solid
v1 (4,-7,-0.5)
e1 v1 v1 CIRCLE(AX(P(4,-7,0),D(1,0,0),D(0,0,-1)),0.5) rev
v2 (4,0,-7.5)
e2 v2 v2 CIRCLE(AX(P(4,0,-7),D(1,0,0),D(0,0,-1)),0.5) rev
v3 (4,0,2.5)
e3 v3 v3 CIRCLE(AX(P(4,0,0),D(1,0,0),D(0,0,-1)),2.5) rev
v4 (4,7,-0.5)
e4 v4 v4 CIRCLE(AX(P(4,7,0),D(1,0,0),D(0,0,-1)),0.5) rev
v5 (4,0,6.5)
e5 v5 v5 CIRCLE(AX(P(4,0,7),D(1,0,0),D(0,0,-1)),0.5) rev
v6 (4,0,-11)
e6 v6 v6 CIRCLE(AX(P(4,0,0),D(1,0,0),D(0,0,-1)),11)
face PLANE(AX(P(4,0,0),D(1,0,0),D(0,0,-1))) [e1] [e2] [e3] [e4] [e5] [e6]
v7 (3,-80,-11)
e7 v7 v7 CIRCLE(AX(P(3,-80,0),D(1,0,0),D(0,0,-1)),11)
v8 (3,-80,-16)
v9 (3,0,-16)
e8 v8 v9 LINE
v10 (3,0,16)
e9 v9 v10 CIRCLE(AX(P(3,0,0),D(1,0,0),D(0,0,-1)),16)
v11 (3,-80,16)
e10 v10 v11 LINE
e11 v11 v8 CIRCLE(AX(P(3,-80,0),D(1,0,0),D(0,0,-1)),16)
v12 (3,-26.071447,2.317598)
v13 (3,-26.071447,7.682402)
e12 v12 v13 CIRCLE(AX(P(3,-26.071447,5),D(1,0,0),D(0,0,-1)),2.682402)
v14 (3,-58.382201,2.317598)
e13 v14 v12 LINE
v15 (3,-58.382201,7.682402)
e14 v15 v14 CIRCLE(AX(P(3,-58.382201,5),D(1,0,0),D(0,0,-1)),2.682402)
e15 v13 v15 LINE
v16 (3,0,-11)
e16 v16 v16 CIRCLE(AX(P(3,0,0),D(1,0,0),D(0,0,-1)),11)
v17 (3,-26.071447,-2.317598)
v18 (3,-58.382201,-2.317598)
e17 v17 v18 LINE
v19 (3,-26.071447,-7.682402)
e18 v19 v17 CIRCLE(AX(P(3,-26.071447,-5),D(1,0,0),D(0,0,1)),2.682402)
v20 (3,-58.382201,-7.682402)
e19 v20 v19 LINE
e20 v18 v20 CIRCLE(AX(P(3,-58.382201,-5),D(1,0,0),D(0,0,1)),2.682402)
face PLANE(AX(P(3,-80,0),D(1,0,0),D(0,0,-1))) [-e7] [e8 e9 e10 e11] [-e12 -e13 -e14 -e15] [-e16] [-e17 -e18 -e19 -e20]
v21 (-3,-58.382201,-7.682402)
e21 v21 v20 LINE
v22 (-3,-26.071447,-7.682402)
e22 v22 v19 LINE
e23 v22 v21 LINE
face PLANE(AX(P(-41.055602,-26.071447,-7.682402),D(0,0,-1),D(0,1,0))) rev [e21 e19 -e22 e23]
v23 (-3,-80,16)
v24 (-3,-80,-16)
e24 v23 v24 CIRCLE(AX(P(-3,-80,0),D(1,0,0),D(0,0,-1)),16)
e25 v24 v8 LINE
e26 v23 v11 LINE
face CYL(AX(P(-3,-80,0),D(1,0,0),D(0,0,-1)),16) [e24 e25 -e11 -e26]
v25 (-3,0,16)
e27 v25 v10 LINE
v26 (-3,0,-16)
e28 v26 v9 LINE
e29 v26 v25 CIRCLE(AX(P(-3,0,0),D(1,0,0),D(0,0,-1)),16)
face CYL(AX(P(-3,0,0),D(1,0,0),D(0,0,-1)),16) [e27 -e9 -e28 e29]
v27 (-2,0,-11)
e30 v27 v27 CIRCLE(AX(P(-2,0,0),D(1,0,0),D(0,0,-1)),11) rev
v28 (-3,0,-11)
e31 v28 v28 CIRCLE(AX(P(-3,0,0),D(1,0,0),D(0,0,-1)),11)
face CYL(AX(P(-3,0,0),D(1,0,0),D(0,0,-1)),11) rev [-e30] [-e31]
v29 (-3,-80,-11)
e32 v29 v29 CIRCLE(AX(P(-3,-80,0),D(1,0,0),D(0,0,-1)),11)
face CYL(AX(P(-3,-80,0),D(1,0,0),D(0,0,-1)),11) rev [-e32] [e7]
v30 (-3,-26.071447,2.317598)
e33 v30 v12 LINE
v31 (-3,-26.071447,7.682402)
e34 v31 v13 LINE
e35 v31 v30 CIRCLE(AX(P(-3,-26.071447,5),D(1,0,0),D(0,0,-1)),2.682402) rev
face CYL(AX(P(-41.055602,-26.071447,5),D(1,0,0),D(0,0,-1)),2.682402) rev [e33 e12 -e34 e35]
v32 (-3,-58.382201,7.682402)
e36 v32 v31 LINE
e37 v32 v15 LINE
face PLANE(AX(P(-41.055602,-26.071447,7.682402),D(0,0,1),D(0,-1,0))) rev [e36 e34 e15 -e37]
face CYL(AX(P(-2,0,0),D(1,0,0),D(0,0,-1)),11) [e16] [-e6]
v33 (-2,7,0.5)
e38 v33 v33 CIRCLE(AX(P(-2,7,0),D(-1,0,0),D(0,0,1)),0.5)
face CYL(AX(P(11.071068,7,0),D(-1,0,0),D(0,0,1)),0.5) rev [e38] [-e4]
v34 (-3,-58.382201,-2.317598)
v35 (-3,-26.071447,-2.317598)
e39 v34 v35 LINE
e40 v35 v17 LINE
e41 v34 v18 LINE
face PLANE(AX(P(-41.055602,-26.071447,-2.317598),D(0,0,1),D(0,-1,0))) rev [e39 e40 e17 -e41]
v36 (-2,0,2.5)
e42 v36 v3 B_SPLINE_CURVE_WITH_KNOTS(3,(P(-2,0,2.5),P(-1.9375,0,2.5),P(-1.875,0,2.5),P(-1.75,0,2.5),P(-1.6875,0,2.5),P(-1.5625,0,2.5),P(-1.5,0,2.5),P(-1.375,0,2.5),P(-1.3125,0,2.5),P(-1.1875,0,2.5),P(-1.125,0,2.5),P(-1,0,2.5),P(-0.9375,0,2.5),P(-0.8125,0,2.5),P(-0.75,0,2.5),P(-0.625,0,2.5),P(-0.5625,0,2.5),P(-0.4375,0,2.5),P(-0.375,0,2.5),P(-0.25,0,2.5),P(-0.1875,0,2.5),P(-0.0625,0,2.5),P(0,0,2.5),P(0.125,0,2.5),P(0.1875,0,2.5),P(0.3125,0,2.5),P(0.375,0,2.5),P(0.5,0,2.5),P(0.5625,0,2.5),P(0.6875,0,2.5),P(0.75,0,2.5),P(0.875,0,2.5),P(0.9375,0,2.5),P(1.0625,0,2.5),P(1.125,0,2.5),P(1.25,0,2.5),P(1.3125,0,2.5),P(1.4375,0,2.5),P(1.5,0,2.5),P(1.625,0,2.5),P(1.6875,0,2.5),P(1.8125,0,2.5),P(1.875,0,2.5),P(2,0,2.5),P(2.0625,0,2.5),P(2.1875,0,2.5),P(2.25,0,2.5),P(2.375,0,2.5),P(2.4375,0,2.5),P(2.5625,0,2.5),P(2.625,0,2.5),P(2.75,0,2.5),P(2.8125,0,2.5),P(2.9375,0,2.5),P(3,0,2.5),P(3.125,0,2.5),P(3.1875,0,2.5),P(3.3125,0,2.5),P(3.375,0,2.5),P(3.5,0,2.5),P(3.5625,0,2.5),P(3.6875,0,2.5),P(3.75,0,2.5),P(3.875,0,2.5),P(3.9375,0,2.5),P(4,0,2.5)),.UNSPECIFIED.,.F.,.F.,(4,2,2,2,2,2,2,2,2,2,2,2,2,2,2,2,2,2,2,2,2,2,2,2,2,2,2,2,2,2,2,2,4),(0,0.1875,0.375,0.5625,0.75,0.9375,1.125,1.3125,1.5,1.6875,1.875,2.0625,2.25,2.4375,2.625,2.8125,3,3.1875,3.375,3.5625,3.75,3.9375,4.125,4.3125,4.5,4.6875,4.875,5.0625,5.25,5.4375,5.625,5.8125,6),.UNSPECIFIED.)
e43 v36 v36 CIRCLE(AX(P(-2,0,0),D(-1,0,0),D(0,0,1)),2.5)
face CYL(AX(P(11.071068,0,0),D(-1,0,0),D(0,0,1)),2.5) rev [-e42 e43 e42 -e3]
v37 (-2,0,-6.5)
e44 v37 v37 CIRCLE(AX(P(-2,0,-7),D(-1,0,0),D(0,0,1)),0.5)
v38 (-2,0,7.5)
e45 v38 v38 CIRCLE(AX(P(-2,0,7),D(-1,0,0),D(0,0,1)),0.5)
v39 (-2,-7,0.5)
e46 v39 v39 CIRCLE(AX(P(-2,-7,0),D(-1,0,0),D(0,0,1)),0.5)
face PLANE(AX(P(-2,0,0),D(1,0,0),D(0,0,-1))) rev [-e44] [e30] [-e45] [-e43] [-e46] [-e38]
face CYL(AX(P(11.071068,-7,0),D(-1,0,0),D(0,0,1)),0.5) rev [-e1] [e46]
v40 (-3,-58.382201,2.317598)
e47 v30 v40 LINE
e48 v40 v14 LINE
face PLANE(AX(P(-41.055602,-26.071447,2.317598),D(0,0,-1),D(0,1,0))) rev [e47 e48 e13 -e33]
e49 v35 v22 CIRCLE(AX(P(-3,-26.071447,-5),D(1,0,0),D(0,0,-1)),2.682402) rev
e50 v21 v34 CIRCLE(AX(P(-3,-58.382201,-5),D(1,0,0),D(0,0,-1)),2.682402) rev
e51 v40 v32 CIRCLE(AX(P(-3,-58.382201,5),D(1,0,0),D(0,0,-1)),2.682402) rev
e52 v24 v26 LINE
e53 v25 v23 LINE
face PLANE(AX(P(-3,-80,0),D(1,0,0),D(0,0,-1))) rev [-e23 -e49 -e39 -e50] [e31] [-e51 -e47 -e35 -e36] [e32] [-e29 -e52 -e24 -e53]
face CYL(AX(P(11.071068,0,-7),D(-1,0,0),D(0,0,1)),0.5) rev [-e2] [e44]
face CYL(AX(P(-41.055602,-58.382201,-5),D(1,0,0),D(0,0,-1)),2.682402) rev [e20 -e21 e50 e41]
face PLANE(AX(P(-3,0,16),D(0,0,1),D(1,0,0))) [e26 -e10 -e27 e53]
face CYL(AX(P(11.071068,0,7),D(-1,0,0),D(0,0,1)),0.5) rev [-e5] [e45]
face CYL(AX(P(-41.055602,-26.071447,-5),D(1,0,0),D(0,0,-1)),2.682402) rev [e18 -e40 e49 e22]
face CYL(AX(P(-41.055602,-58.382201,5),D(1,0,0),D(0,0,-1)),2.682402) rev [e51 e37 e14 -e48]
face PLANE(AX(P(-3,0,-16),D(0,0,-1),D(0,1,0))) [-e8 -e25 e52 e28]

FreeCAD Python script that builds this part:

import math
import FreeCAD as App
import Part
import Sketcher

doc = App.newDocument("Part")
body = doc.addObject("PartDesign::Body", "Body")

# Sketch on YZ plane
sketch1 = doc.addObject("Sketcher::SketchObject", "Sketch")
body.addObject(sketch1)
sketch1.AttachmentSupport = (doc.YZ_Plane, [""])
sketch1.MapMode = "FlatFace"
sketch1.addGeometry([
    Part.LineSegment(App.Vector(0, 16, 0), App.Vector(-80, 16, 0)),  # 0
    Part.ArcOfCircle(Part.Circle(App.Vector(-80, 0, 0), App.Vector(0, 0, 1), 16), math.radians(90), math.radians(270)),  # 1
    Part.LineSegment(App.Vector(-80, -16, 0), App.Vector(0, -16, 0)),  # 2
    Part.ArcOfCircle(Part.Circle(App.Vector(0, 0, 0), App.Vector(0, 0, 1), 16), math.radians(-90), math.radians(90)),  # 3
    Part.Circle(App.Vector(-80, 0, 0), App.Vector(0, 0, 1), 11),  # 4
    Part.Circle(App.Vector(0, 0, 0), App.Vector(0, 0, 1), 11),  # 5
], False)
sketch1.addConstraint([
    Sketcher.Constraint("Tangent", 0, 2, 1, 1),
    Sketcher.Constraint("Tangent", 1, 2, 2, 1),
    Sketcher.Constraint("Tangent", 2, 2, 3, 1),
    Sketcher.Constraint("Tangent", 3, 2, 0, 1),
    Sketcher.Constraint("Horizontal", 0),
    Sketcher.Constraint("Horizontal", 2),
    Sketcher.Constraint("Coincident", 3, 3, -1, 1),
    Sketcher.Constraint("Coincident", 5, 3, -1, 1),
    Sketcher.Constraint("Coincident", 4, 3, 1, 3),
    Sketcher.Constraint("Equal", 4, 5),
    Sketcher.Constraint("Diameter", 4, 22.0),
    Sketcher.Constraint("Radius", 1, 16.0),
    Sketcher.Constraint("DistanceX", 0, 2, 0, 1, 80.0),
])
pad1 = doc.addObject("PartDesign::Pad", "Pad")
body.addObject(pad1)
pad1.Profile = sketch1
pad1.Type = "TwoLengths"
pad1.Length = 3
pad1.Length2 = 3

# Sketch on YZ plane
sketch2 = doc.addObject("Sketcher::SketchObject", "Sketch001")
body.addObject(sketch2)
sketch2.AttachmentSupport = (doc.YZ_Plane, [""])
sketch2.MapMode = "FlatFace"
sketch2.addGeometry(Part.Circle(App.Vector(0, 0, 0), App.Vector(0, 0, 1), 11), False)
sketch2.addConstraint([
    Sketcher.Constraint("Coincident", 0, 3, -1, 1),
    Sketcher.Constraint("Diameter", 0, 22.0),
])
pad2 = doc.addObject("PartDesign::Pad", "Pad001")
body.addObject(pad2)
pad2.Profile = sketch2
pad2.Type = "TwoLengths"
pad2.Length = 4
pad2.Length2 = 2

# Sketch on YZ plane
sketch3 = doc.addObject("Sketcher::SketchObject", "Sketch002")
body.addObject(sketch3)
sketch3.AttachmentSupport = (doc.YZ_Plane, [""])
sketch3.MapMode = "FlatFace"
sketch3.AttachmentOffset = App.Placement(App.Vector(0, 0, 3), App.Rotation())
sketch3.addGeometry([
    Part.LineSegment(App.Vector(-58.4, 2.3, 0), App.Vector(-26.1, 2.3, 0)),  # 0
    Part.ArcOfCircle(Part.Circle(App.Vector(-26.1, 5, 0), App.Vector(0, 0, 1), 2.7), math.radians(-90), math.radians(90)),  # 1
    Part.LineSegment(App.Vector(-26.1, 7.7, 0), App.Vector(-58.4, 7.7, 0)),  # 2
    Part.ArcOfCircle(Part.Circle(App.Vector(-58.4, 5, 0), App.Vector(0, 0, 1), 2.7), math.radians(90), math.radians(270)),  # 3
    Part.LineSegment(App.Vector(-26.1, -2.3, 0), App.Vector(-58.4, -2.3, 0)),  # 4
    Part.ArcOfCircle(Part.Circle(App.Vector(-58.4, -5, 0), App.Vector(0, 0, 1), 2.7), math.radians(90), math.radians(270)),  # 5
    Part.LineSegment(App.Vector(-58.4, -7.7, 0), App.Vector(-26.1, -7.7, 0)),  # 6
    Part.ArcOfCircle(Part.Circle(App.Vector(-26.1, -5, 0), App.Vector(0, 0, 1), 2.7), math.radians(-90), math.radians(90)),  # 7
], False)
sketch3.addConstraint([
    Sketcher.Constraint("Tangent", 0, 2, 1, 1),
    Sketcher.Constraint("Tangent", 1, 2, 2, 1),
    Sketcher.Constraint("Tangent", 2, 2, 3, 1),
    Sketcher.Constraint("Tangent", 3, 2, 0, 1),
    Sketcher.Constraint("Tangent", 4, 2, 5, 1),
    Sketcher.Constraint("Tangent", 5, 2, 6, 1),
    Sketcher.Constraint("Tangent", 6, 2, 7, 1),
    Sketcher.Constraint("Tangent", 7, 2, 4, 1),
    Sketcher.Constraint("Horizontal", 0),
    Sketcher.Constraint("Horizontal", 2),
    Sketcher.Constraint("Horizontal", 4),
    Sketcher.Constraint("Horizontal", 6),
    Sketcher.Constraint("Equal", 3, 5),
    Sketcher.Constraint("Symmetric", 3, 3, 5, 3, -1),
    Sketcher.Constraint("Vertical", 1, 3, 7, 3),
    Sketcher.Constraint("DistanceY", -1, 1, 1, 3, 5.0),
    Sketcher.Constraint("Radius", 1, 2.682402),
    Sketcher.Constraint("DistanceX", 3, 3, -1, 1, 58.382201),
    Sketcher.Constraint("DistanceX", 0, 1, 0, 2, 32.310755),
])
pocket1 = doc.addObject("PartDesign::Pocket", "Pocket")
body.addObject(pocket1)
pocket1.Profile = sketch3
pocket1.Length = 6

# Sketch on YZ plane
sketch4 = doc.addObject("Sketcher::SketchObject", "Sketch003")
body.addObject(sketch4)
sketch4.AttachmentSupport = (doc.YZ_Plane, [""])
sketch4.MapMode = "FlatFace"
sketch4.AttachmentOffset = App.Placement(App.Vector(0, 0, -2), App.Rotation())
sketch4.addGeometry([
    Part.Circle(App.Vector(0, 0, 0), App.Vector(0, 0, 1), 2.5),  # 0
    Part.Circle(App.Vector(7, 0, 0), App.Vector(0, 0, 1), 0.5),  # 1
    Part.Circle(App.Vector(0, -7, 0), App.Vector(0, 0, 1), 0.5),  # 2
    Part.Circle(App.Vector(0, 7, 0), App.Vector(0, 0, 1), 0.5),  # 3
    Part.Circle(App.Vector(-7, 0, 0), App.Vector(0, 0, 1), 0.5),  # 4
], False)
sketch4.addConstraint([
    Sketcher.Constraint("Coincident", 0, 3, -1, 1),
    Sketcher.Constraint("Equal", 1, 2),
    Sketcher.Constraint("Equal", 2, 3),
    Sketcher.Constraint("Equal", 3, 4),
    Sketcher.Constraint("Symmetric", 2, 3, 3, 3, -1, 1),
    Sketcher.Constraint("Symmetric", 1, 3, 4, 3, -1, 1),
    Sketcher.Constraint("PointOnObject", 1, 3, -1),
    Sketcher.Constraint("PointOnObject", 2, 3, -2),
    Sketcher.Constraint("Diameter", 0, 5.0),
    Sketcher.Constraint("Diameter", 1, 1.0),
    Sketcher.Constraint("DistanceX", -1, 1, 1, 3, 7.0),
    Sketcher.Constraint("DistanceY", 2, 3, -1, 1, 7.0),
])
pocket2 = doc.addObject("PartDesign::Pocket", "Pocket001")
body.addObject(pocket2)
pocket2.Profile = sketch4
pocket2.Length = 6
pocket2.Reversed = True

doc.recompute()
